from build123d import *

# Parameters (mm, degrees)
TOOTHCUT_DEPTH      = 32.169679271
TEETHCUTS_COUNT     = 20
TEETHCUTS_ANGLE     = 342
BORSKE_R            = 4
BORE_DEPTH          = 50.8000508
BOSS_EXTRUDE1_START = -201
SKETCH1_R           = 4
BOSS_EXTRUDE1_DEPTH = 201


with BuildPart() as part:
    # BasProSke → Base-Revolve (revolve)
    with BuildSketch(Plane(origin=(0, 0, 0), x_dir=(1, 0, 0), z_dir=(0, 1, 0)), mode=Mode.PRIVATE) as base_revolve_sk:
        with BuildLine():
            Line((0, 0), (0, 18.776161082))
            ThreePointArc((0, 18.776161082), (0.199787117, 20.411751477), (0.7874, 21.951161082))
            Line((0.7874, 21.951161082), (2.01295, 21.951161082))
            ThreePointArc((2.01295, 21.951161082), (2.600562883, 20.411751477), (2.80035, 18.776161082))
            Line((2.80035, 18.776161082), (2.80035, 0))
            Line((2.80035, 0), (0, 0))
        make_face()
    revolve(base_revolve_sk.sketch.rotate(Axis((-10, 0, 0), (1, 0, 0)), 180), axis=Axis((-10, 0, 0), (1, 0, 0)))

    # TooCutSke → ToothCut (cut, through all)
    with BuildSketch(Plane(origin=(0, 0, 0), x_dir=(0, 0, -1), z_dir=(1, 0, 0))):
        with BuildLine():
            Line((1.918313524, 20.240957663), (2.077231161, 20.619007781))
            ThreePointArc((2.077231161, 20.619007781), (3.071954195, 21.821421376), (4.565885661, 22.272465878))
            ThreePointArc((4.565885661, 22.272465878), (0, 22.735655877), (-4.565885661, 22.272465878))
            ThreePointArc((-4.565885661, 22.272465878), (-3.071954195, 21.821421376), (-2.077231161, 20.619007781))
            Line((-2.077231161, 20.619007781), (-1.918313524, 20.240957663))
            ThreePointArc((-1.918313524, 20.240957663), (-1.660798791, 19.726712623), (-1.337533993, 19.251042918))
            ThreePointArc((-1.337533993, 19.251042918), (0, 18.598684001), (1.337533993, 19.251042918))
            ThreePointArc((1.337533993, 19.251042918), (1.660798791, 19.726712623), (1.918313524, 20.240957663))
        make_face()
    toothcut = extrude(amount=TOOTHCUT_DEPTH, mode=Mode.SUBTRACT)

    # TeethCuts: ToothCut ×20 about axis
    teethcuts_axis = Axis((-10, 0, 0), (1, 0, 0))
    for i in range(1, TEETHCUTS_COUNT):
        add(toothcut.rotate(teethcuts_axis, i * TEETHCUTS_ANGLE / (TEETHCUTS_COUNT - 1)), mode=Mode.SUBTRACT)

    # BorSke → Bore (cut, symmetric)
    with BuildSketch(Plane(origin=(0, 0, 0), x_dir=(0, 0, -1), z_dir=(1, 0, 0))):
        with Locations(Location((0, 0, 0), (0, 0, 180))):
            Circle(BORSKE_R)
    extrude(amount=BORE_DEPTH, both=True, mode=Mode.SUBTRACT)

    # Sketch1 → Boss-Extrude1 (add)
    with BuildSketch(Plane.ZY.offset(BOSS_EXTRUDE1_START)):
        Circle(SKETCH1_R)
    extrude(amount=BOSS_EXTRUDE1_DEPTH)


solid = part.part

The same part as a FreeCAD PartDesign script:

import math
import FreeCAD as App
import Part
import Sketcher
Q = App.Units.Quantity

doc = App.newDocument("Part")
params = doc.addObject("Spreadsheet::Sheet", "Params")
for row, (alias, value) in enumerate([
    ("revolution_angle", "360 deg"),
    ("sketch3_diameter", "8 mm"),
    ("pocket2_length", "101.600102 mm"),
    ("sketch4_diameter", "8 mm"),
    ("pad1_length", "201 mm"),
], start=1):
    params.set(f"A{row}", alias)
    params.set(f"B{row}", "=" + value)
    params.setAlias(f"B{row}", alias)

body = doc.addObject("PartDesign::Body", "Body")

sketch1 = doc.addObject("Sketcher::SketchObject", "Sketch")
body.addObject(sketch1)
sketch1.AttachmentSupport = (doc.XZ_Plane, [""])
sketch1.MapMode = "FlatFace"
sketch1.addGeometry([
    Part.LineSegment(App.Vector(0, -18.8, 0), App.Vector(0, 0, 0)),
    Part.LineSegment(App.Vector(0, 0, 0), App.Vector(2.8, 0, 0)),
    Part.LineSegment(App.Vector(2.8, 0, 0), App.Vector(2.8, -18.8, 0)),
    Part.ArcOfCircle(Part.Circle(App.Vector(-4, -18.8, 0), App.Vector(0, 0, 1), 6.8), math.radians(-28), math.radians(0)),
    Part.LineSegment(App.Vector(2, -22, 0), App.Vector(0.8, -22, 0)),
    Part.ArcOfCircle(Part.Circle(App.Vector(6.8, -18.8, 0), App.Vector(0, 0, 1), 6.8), math.radians(180), math.radians(208)),
], False)
sketch1.addConstraint([
    Sketcher.Constraint("Coincident", 0, 2, 1, 1),
    Sketcher.Constraint("Coincident", 1, 2, 2, 1),
    Sketcher.Constraint("Tangent", 2, 2, 3, 2),
    Sketcher.Constraint("Coincident", 3, 1, 4, 1),
    Sketcher.Constraint("Coincident", 4, 2, 5, 2),
    Sketcher.Constraint("Tangent", 5, 1, 0, 1),
    Sketcher.Constraint("Vertical", 0),
    Sketcher.Constraint("Horizontal", 1),
    Sketcher.Constraint("Vertical", 2),
    Sketcher.Constraint("Horizontal", 4),
    Sketcher.Constraint("Coincident", 0, 2, -1, 1),
    Sketcher.Constraint("Equal", 3, 5),
    Sketcher.Constraint("Horizontal", 3, 3, 5, 3),
    Sketcher.Constraint("Radius", 3, Q("6.79491 mm")),
    Sketcher.Constraint("DistanceY", 3, 1, 2, 2, Q("3.175 mm")),
    Sketcher.Constraint("DistanceX", 1, 1, 1, 2, Q("2.80035 mm")),
    Sketcher.Constraint("DistanceY", 0, 1, 0, 2, Q("18.776161 mm")),
])
revolution = doc.addObject("PartDesign::Revolution", "Revolution")
body.addObject(revolution)
revolution.Profile = sketch1
revolution.ReferenceAxis = (sketch1, ["H_Axis"])
revolution.setExpression("Angle", "Params.revolution_angle")

sketch2 = doc.addObject("Sketcher::SketchObject", "Sketch001")
body.addObject(sketch2)
sketch2.AttachmentSupport = (doc.YZ_Plane, [""])
sketch2.MapMode = "FlatFace"
sketch2.addGeometry([
    Part.LineSegment(App.Vector(20.24, -1.92, 0), App.Vector(20.62, -2.08, 0)),
    Part.ArcOfCircle(Part.Circle(App.Vector(19.57, -4.57, 0), App.Vector(0, 0, 1), 2.7), math.radians(0), math.radians(67)),
    Part.ArcOfCircle(Part.Circle(App.Vector(0, 0, 0), App.Vector(0, 0, 1), 22.74), math.radians(-12), math.radians(12)),
    Part.ArcOfCircle(Part.Circle(App.Vector(19.57, 4.57, 0), App.Vector(0, 0, 1), 2.7), math.radians(-67), math.radians(0)),
    Part.LineSegment(App.Vector(20.62, 2.08, 0), App.Vector(20.24, 1.92, 0)),
    Part.ArcOfCircle(Part.Circle(App.Vector(21.92, -2.08, 0), App.Vector(0, 0, 1), 4.34), math.radians(112.8), math.radians(128)),
    Part.ArcOfCircle(Part.Circle(App.Vector(20.3, 0, 0), App.Vector(0, 0, 1), 1.7), math.radians(128), math.radians(232)),
    Part.ArcOfCircle(Part.Circle(App.Vector(21.92, 2.08, 0), App.Vector(0, 0, 1), 4.34), math.radians(-128), math.radians(-112.8)),
], False)
sketch2.addConstraint([
    Sketcher.Constraint("Tangent", 0, 2, 1, 2),
    Sketcher.Constraint("Coincident", 1, 1, 2, 1),
    Sketcher.Constraint("Coincident", 2, 2, 3, 2),
    Sketcher.Constraint("Tangent", 3, 1, 4, 1),
    Sketcher.Constraint("Tangent", 4, 2, 5, 1),
    Sketcher.Constraint("Tangent", 5, 2, 6, 1),
    Sketcher.Constraint("Tangent", 6, 2, 7, 1),
    Sketcher.Constraint("Tangent", 7, 2, 0, 1),
    Sketcher.Constraint("Coincident", 2, 3, -1, 1),
    Sketcher.Constraint("Equal", 1, 3),
    Sketcher.Constraint("Equal", 5, 7),
    Sketcher.Constraint("Symmetric", 1, 3, 3, 3, -1),
    Sketcher.Constraint("Symmetric", 5, 3, 7, 3, -1),
    Sketcher.Constraint("Horizontal", 3, 3, 2, 2),
    Sketcher.Constraint("Angle", 0, Q("-22.8 deg")),
    Sketcher.Constraint("Radius", 1, Q("2.699592 mm")),
    Sketcher.Constraint("Radius", 2, Q("22.735656 mm")),
    Sketcher.Constraint("Radius", 5, Q("4.338955 mm")),
    Sketcher.Constraint("Radius", 6, Q("1.697355 mm")),
    Sketcher.Constraint("DistanceX", -1, 1, 5, 3, Q("21.92237 mm")),
    Sketcher.Constraint("DistanceY", 5, 3, -1, 1, Q("2.081609 mm")),
])
pocket1 = doc.addObject("PartDesign::Pocket", "Pocket")
body.addObject(pocket1)
pocket1.Profile = sketch2
pocket1.Type = "ThroughAll"
pocket1.Reversed = True
doc.recompute()

polarpattern = doc.addObject("PartDesign::PolarPattern", "PolarPattern")
body.addObject(polarpattern)
polarpattern.Originals = [pocket1]
polarpattern.Axis = (doc.X_Axis, [""])
polarpattern.Angle = 360
polarpattern.Occurrences = 20
body.Tip = polarpattern

sketch3 = doc.addObject("Sketcher::SketchObject", "Sketch002")
body.addObject(sketch3)
sketch3.AttachmentSupport = (doc.YZ_Plane, [""])
sketch3.MapMode = "FlatFace"
sketch3.addGeometry(Part.Circle(App.Vector(0, 0, 0), App.Vector(0, 0, 1), 4), False)
sketch3.addConstraint([
    Sketcher.Constraint("Coincident", 0, 3, -1, 1),
    Sketcher.Constraint("Diameter", 0, Q("8 mm")),
])
sketch3.setExpression("Constraints[1]", "Params.sketch3_diameter")
pocket2 = doc.addObject("PartDesign::Pocket", "Pocket001")
body.addObject(pocket2)
pocket2.Profile = sketch3
pocket2.setExpression("Length", "Params.pocket2_length")
pocket2.Midplane = True

sketch4 = doc.addObject("Sketcher::SketchObject", "Sketch003")
body.addObject(sketch4)
sketch4.AttachmentSupport = (doc.YZ_Plane, [""])
sketch4.MapMode = "FlatFace"
sketch4.AttachmentOffset = App.Placement(App.Vector(0, 0, 201), App.Rotation())
sketch4.addGeometry(Part.Circle(App.Vector(0, 0, 0), App.Vector(0, 0, 1), 4), False)
sketch4.addConstraint([
    Sketcher.Constraint("Coincident", 0, 3, -1, 1),
    Sketcher.Constraint("Diameter", 0, Q("8 mm")),
])
sketch4.setExpression("Constraints[1]", "Params.sketch4_diameter")
pad1 = doc.addObject("PartDesign::Pad", "Pad")
body.addObject(pad1)
pad1.Profile = sketch4
pad1.setExpression("Length", "Params.pad1_length")
pad1.Reversed = True

doc.recompute()
